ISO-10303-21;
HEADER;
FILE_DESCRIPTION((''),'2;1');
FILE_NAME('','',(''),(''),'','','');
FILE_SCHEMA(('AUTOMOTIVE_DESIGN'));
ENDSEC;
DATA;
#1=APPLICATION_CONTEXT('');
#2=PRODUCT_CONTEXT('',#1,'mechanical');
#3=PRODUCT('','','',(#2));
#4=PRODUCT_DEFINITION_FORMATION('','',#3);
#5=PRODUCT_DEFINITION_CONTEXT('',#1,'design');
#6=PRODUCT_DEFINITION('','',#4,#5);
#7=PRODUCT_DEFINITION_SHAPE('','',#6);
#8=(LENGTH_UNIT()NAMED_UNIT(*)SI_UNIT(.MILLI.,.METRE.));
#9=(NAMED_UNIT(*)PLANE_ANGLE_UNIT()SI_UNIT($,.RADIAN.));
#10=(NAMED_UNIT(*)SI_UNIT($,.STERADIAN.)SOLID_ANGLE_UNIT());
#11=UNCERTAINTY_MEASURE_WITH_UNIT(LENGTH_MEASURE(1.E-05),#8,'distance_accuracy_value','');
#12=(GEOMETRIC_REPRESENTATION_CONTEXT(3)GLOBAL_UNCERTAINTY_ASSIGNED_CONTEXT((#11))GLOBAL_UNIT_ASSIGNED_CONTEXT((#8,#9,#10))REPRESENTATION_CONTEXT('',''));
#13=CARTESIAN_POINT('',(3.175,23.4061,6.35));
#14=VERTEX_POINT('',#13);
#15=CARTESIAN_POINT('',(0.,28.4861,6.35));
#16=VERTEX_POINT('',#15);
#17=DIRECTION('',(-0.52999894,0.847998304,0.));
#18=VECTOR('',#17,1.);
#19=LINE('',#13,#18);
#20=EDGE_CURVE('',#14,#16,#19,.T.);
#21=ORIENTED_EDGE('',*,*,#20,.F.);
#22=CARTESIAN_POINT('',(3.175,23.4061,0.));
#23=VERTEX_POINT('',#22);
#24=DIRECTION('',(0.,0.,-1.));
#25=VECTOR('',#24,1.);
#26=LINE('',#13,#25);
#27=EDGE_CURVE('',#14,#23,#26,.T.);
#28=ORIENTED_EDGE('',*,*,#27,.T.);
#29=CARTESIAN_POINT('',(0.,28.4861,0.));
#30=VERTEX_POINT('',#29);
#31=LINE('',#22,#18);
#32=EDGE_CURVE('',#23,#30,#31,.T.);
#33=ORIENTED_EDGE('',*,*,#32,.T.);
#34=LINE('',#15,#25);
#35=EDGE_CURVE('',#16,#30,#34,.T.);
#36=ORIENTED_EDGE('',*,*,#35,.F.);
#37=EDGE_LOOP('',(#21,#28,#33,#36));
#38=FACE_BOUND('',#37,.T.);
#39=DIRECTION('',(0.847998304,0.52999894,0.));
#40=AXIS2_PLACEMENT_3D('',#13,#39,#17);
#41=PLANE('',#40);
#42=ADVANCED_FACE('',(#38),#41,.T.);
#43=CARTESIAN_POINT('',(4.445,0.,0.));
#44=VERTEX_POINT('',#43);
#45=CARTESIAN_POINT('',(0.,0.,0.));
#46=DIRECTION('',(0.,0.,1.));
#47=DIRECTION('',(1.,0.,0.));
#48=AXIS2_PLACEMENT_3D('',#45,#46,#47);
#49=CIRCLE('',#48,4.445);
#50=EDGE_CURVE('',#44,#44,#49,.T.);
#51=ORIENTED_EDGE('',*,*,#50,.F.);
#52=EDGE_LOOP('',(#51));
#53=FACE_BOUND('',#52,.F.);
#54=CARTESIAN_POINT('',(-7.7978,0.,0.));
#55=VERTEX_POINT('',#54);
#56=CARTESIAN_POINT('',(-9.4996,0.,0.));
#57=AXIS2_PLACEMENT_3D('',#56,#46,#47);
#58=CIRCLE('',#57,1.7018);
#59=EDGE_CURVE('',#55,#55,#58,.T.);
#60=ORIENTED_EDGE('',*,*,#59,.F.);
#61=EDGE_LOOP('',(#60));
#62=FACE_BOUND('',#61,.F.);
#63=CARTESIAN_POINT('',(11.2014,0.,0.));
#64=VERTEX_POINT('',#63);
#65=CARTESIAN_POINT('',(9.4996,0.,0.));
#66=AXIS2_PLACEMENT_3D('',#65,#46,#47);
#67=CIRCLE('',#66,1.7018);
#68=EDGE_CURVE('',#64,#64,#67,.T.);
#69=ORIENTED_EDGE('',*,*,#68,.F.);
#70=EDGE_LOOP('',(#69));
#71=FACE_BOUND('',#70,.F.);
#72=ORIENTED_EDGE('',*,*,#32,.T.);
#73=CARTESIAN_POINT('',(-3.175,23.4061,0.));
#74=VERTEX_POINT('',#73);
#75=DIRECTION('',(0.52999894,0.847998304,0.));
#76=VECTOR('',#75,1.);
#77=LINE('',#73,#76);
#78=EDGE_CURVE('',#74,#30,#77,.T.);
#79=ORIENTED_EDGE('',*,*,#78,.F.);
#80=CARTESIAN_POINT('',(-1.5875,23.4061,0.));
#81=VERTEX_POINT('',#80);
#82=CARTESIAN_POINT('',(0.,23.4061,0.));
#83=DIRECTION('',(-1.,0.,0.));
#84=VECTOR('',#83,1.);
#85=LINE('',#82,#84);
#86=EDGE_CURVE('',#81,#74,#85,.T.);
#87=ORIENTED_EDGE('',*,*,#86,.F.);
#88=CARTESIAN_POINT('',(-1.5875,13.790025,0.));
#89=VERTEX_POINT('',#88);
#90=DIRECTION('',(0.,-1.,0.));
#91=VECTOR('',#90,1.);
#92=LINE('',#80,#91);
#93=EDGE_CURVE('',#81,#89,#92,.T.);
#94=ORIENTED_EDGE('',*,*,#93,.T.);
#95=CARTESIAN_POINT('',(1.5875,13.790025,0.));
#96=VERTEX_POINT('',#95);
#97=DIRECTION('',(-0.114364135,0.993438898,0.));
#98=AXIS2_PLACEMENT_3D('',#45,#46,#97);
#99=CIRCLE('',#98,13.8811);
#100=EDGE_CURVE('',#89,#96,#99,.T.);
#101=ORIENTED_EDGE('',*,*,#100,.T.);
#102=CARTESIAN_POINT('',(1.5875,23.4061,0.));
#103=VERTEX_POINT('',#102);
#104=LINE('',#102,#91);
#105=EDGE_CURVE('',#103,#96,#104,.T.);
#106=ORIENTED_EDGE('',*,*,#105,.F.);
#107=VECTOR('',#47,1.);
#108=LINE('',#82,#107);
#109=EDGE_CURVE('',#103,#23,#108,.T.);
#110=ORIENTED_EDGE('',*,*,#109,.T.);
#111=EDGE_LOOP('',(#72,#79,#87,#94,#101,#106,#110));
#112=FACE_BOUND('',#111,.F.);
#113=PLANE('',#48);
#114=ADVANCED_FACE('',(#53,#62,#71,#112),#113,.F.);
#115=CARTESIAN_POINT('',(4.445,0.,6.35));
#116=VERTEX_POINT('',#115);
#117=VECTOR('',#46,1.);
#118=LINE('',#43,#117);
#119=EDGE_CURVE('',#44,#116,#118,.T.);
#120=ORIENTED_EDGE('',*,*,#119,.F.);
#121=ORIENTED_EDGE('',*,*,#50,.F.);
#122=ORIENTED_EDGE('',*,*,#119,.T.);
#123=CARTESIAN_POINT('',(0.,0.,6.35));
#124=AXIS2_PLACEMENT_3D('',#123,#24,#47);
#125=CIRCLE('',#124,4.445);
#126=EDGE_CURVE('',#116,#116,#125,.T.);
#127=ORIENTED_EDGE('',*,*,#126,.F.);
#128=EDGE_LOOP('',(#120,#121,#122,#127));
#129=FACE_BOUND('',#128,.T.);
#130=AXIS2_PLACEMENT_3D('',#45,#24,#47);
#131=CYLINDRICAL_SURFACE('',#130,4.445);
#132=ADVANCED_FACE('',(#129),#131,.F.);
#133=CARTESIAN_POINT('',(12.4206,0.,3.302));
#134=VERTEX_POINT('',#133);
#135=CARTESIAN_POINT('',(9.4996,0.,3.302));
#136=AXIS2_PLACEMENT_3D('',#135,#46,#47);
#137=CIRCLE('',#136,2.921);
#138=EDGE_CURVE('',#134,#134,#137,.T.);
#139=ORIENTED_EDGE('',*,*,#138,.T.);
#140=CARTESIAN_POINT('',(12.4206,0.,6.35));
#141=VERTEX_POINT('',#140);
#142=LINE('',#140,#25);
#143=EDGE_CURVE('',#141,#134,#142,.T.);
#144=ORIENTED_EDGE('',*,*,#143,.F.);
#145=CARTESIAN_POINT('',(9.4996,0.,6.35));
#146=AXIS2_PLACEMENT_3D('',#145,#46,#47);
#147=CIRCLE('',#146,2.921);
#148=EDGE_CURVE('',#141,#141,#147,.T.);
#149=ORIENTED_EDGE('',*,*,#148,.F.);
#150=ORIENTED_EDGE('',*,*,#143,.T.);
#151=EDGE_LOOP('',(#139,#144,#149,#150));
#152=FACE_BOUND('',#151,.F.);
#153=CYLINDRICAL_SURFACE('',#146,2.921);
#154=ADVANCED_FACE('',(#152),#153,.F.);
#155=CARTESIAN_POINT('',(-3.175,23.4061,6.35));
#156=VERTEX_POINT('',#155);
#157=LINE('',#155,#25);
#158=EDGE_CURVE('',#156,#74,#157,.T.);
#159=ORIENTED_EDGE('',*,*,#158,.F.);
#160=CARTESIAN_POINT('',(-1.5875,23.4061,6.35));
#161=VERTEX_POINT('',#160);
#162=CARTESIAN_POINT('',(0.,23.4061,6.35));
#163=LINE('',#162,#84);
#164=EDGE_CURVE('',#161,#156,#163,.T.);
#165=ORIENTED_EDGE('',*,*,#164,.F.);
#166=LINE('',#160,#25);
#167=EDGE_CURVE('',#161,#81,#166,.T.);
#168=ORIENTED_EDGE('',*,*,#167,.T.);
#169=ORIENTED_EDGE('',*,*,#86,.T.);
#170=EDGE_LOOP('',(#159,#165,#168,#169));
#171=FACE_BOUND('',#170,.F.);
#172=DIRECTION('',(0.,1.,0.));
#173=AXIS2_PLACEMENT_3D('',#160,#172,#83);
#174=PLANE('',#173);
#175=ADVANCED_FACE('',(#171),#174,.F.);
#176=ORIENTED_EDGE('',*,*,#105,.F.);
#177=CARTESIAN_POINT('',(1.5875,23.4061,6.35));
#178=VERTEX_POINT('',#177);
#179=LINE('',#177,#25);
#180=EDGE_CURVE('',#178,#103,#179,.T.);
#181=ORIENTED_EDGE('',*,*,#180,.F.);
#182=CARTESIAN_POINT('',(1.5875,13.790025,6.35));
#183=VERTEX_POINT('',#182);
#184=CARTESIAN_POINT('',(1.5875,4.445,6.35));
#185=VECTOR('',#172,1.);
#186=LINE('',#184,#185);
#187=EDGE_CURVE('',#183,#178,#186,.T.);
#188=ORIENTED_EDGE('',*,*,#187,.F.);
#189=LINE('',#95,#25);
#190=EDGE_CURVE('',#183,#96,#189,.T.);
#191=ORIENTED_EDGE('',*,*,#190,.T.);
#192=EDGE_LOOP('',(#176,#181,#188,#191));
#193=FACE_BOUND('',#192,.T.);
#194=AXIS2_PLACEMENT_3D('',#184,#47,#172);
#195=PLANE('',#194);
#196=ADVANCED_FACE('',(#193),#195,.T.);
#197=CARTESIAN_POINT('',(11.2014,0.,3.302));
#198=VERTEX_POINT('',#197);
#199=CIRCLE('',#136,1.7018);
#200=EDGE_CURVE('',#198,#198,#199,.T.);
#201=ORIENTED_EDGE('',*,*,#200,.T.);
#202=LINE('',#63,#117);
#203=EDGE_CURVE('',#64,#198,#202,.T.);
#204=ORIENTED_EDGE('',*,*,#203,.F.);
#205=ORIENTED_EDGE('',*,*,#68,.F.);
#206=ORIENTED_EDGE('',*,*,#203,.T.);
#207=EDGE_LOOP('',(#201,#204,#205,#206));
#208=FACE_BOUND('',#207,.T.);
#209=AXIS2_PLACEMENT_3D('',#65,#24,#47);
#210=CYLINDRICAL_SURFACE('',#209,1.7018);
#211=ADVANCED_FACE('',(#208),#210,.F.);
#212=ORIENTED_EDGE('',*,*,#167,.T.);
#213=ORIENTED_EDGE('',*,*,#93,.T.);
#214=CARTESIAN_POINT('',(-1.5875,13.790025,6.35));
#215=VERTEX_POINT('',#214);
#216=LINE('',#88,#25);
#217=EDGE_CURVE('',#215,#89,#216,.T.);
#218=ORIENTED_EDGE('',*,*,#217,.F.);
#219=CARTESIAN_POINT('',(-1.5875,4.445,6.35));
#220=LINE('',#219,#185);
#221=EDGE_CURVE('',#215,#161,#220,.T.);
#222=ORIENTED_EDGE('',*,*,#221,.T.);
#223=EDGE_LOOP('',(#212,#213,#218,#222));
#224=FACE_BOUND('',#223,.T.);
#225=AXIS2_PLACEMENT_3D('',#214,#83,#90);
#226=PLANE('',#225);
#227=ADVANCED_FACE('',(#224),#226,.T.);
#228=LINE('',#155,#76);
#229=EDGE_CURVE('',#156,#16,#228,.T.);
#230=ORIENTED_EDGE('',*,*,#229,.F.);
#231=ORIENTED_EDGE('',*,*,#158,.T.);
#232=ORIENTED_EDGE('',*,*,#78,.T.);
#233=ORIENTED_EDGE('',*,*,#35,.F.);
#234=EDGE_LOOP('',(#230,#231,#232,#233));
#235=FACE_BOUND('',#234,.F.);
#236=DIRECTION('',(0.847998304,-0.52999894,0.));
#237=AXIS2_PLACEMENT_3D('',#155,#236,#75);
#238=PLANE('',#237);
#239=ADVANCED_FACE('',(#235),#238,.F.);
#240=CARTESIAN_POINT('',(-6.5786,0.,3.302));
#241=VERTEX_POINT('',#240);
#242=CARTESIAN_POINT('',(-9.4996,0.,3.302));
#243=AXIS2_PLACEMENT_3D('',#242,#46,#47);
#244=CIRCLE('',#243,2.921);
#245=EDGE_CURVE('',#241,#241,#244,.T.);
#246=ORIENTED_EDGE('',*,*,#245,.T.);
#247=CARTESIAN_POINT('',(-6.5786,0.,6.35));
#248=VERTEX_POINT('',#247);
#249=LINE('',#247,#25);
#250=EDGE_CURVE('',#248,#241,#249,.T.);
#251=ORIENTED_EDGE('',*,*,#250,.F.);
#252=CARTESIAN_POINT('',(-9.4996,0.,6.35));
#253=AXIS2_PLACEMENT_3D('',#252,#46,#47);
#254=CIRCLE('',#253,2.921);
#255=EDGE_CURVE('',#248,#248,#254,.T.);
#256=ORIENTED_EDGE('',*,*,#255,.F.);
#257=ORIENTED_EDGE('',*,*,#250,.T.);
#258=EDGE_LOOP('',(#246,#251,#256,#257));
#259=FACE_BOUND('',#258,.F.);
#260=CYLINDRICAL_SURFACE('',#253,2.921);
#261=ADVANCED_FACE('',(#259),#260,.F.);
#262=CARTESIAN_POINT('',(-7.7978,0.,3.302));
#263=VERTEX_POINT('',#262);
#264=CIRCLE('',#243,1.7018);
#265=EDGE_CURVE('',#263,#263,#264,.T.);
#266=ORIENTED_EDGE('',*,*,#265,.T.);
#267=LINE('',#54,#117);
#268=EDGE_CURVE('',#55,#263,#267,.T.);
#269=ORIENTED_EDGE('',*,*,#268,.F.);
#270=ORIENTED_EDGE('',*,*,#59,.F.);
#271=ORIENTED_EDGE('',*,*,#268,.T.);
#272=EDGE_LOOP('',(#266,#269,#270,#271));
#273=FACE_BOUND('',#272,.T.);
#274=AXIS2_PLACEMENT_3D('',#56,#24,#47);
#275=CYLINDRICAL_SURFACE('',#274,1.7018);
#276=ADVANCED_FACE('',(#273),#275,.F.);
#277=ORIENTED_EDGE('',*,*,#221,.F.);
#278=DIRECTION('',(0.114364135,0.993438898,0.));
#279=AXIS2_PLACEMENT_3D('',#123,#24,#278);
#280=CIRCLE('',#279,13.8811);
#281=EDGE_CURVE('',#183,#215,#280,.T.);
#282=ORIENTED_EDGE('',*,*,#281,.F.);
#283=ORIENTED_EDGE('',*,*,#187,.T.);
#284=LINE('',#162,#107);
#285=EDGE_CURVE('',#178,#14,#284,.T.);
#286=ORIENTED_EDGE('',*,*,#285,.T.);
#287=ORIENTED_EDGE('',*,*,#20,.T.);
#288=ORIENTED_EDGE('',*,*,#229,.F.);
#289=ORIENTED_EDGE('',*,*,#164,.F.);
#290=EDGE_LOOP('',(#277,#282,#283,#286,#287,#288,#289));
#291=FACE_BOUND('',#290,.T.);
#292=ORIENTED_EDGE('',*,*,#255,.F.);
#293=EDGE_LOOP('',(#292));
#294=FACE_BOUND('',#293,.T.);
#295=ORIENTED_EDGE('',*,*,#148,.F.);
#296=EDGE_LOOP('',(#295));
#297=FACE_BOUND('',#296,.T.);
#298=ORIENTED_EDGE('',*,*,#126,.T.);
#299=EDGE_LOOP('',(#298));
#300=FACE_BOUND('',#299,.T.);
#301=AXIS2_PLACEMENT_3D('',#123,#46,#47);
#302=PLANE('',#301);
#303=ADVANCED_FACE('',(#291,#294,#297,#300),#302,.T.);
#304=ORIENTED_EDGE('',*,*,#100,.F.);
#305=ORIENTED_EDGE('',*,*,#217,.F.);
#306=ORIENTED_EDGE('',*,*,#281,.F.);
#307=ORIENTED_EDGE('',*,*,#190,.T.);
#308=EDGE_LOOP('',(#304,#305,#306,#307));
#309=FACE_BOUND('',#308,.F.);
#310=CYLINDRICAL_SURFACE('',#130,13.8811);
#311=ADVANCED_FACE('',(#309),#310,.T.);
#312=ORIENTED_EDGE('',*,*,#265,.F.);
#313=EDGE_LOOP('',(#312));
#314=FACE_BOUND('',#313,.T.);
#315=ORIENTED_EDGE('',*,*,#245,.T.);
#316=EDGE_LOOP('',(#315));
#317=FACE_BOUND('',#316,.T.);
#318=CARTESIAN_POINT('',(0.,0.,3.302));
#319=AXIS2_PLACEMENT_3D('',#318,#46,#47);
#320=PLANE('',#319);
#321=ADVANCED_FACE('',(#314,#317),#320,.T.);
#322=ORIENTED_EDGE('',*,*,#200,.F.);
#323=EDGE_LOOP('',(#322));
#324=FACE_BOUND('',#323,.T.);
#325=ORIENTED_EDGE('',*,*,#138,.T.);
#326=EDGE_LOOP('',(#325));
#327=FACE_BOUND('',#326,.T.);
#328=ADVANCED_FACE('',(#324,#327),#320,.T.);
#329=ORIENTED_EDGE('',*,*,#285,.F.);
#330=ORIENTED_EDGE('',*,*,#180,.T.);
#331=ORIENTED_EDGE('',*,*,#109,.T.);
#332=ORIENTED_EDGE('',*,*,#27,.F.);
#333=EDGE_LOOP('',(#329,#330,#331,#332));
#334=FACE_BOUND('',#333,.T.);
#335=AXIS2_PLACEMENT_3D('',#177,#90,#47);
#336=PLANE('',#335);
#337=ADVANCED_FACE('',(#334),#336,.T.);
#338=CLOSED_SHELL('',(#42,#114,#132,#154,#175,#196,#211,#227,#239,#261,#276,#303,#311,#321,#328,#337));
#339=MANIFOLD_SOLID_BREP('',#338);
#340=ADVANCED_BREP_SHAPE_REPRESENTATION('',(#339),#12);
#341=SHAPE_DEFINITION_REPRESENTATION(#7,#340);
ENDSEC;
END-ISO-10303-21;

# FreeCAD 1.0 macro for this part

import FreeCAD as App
import Part
import Sketcher
from FreeCAD import Vector
Q = App.Units.Quantity


def add_polygon(sketch, points):
    """Adds a closed chain of lines whose ends are joined by coincident constraints."""
    first, n = sketch.GeometryCount, len(points)
    for a, b in zip(points, points[1:] + points[:1]):
        sketch.addGeometry(Part.LineSegment(App.Vector(*a, 0), App.Vector(*b, 0)), False)
    for i in range(n):
        sketch.addConstraint(Sketcher.Constraint("Coincident", first + i, 2, first + (i + 1) % n, 1))

doc = App.newDocument("Part")
body = doc.addObject("PartDesign::Body", "Body")

# Sketch on XY plane
sketch1 = body.newObject("Sketcher::SketchObject", "Sketch")
sketch1.AttachmentSupport = (doc.getObject("XY_Plane"), [""])
sketch1.MapMode = "FlatFace"
sketch1.addGeometry([
    Part.Circle(Vector(0, 0, 0), Vector(0, 0, 1), 13.9),
    Part.Circle(Vector(-9.5, 0, 0), Vector(0, 0, 1), 1.7),
    Part.Circle(Vector(0, 0, 0), Vector(0, 0, 1), 4.4),
    Part.Circle(Vector(9.5, 0, 0), Vector(0, 0, 1), 1.7),
], False)
sketch1.addConstraint([
    Sketcher.Constraint("Coincident", 0, 3, -1, 1),
    Sketcher.Constraint("Coincident", 2, 3, -1, 1),
    Sketcher.Constraint("Equal", 1, 3),
    Sketcher.Constraint("Symmetric", 1, 3, 3, 3, -1, 1),
    Sketcher.Constraint("PointOnObject", 1, 3, -1),
    Sketcher.Constraint("Diameter", 2, Q("0.35 in")),
    Sketcher.Constraint("Diameter", 0, Q("1.093 in")),
    Sketcher.Constraint("Diameter", 1, Q("0.134 in")),
    Sketcher.Constraint("DistanceX", 1, 3, -1, 1, Q("0.374 in")),
])
pad1 = body.newObject("PartDesign::Pad", "Pad")
pad1.Profile = sketch1
pad1.Length = Q("0.25 in")

# Sketch on XY plane
sketch2 = body.newObject("Sketcher::SketchObject", "Sketch001")
sketch2.AttachmentSupport = (doc.getObject("XY_Plane"), [""])
sketch2.MapMode = "FlatFace"
sketch2.AttachmentOffset = App.Placement(Vector(0, 0, 0.25 * 25.4), App.Rotation())
add_polygon(sketch2, [(-1.6, 4.4), (1.6, 4.4), (1.6, 23.4), (3.2, 23.4), (0, 28.5), (-3.2, 23.4), (-1.6, 23.4)])  # lines 0-6
sketch2.addConstraint([
    Sketcher.Constraint("Horizontal", 0),
    Sketcher.Constraint("Vertical", 1),
    Sketcher.Constraint("Horizontal", 2),
    Sketcher.Constraint("Horizontal", 5),
    Sketcher.Constraint("Vertical", 6),
    Sketcher.Constraint("Symmetric", 2, 2, 4, 2, -2),
    Sketcher.Constraint("PointOnObject", 3, 2, -2),
    Sketcher.Constraint("Equal", 2, 5),
    Sketcher.Constraint("DistanceY", 1, 2, 3, 2, Q("0.2 in")),
    Sketcher.Constraint("DistanceX", 0, 1, 0, 2, Q("0.125 in")),
    Sketcher.Constraint("DistanceX", -1, 1, 2, 2, Q("0.125 in")),
    Sketcher.Constraint("DistanceY", 1, 1, 1, 2, Q("0.7465 in")),
    Sketcher.Constraint("DistanceY", -1, 1, 0, 2, Q("0.175 in")),
])
pad2 = body.newObject("PartDesign::Pad", "Pad001")
pad2.Profile = sketch2
pad2.Length = Q("0.25 in")
pad2.Reversed = True

# Sketch on XY plane
sketch3 = body.newObject("Sketcher::SketchObject", "Sketch002")
sketch3.AttachmentSupport = (doc.getObject("XY_Plane"), [""])
sketch3.MapMode = "FlatFace"
sketch3.AttachmentOffset = App.Placement(Vector(0, 0, 0.25 * 25.4), App.Rotation())
sketch3.addGeometry([
    Part.Circle(Vector(-9.5, 0, 0), Vector(0, 0, 1), 2.9),
    Part.Circle(Vector(-9.5, 0, 0), Vector(0, 0, 1), 1.7),
    Part.Circle(Vector(9.5, 0, 0), Vector(0, 0, 1), 2.9),
    Part.Circle(Vector(9.5, 0, 0), Vector(0, 0, 1), 1.7),
], False)
sketch3.addConstraint([
    Sketcher.Constraint("Coincident", 1, 3, 0, 3),
    Sketcher.Constraint("Coincident", 3, 3, 2, 3),
    Sketcher.Constraint("Equal", 0, 2),
    Sketcher.Constraint("Equal", 1, 3),
    Sketcher.Constraint("Symmetric", 0, 3, 2, 3, -1, 1),
    Sketcher.Constraint("PointOnObject", 0, 3, -1),
    Sketcher.Constraint("Diameter", 0, Q("0.23 in")),
    Sketcher.Constraint("Diameter", 1, Q("0.134 in")),
    Sketcher.Constraint("DistanceX", 0, 3, -1, 1, Q("0.374 in")),
])
pocket1 = body.newObject("PartDesign::Pocket", "Pocket")
pocket1.Profile = sketch3
pocket1.Length = Q("0.12 in")

doc.recompute()
